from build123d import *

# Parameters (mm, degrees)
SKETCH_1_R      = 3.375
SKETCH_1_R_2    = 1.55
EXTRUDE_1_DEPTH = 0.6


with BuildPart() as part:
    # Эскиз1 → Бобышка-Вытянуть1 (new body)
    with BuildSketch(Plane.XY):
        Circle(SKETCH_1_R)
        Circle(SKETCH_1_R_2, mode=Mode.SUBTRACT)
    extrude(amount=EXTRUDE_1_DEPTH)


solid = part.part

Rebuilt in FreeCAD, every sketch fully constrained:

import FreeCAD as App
import Part
import Sketcher

doc = App.newDocument("Part")
body = doc.addObject("PartDesign::Body", "Body")

# Sketch on XY plane
sketch1 = body.newObject("Sketcher::SketchObject", "Sketch")
sketch1.AttachmentSupport = (doc.getObject("XY_Plane"), [""])
sketch1.MapMode = "FlatFace"
sketch1.addGeometry([
    Part.Circle(App.Vector(0, 0, 0), App.Vector(0, 0, 1), 3.4),
    Part.Circle(App.Vector(0, 0, 0), App.Vector(0, 0, 1), 1.6),
], False)
sketch1.addConstraint([
    Sketcher.Constraint("Coincident", 0, 3, -1, 1),
    Sketcher.Constraint("Coincident", 1, 3, -1, 1),
    Sketcher.Constraint("Diameter", 1, 3.1),
    Sketcher.Constraint("Diameter", 0, 6.75),
])
pad1 = body.newObject("PartDesign::Pad", "Pad")
pad1.Profile = sketch1
pad1.Length = 0.6

doc.recompute()
